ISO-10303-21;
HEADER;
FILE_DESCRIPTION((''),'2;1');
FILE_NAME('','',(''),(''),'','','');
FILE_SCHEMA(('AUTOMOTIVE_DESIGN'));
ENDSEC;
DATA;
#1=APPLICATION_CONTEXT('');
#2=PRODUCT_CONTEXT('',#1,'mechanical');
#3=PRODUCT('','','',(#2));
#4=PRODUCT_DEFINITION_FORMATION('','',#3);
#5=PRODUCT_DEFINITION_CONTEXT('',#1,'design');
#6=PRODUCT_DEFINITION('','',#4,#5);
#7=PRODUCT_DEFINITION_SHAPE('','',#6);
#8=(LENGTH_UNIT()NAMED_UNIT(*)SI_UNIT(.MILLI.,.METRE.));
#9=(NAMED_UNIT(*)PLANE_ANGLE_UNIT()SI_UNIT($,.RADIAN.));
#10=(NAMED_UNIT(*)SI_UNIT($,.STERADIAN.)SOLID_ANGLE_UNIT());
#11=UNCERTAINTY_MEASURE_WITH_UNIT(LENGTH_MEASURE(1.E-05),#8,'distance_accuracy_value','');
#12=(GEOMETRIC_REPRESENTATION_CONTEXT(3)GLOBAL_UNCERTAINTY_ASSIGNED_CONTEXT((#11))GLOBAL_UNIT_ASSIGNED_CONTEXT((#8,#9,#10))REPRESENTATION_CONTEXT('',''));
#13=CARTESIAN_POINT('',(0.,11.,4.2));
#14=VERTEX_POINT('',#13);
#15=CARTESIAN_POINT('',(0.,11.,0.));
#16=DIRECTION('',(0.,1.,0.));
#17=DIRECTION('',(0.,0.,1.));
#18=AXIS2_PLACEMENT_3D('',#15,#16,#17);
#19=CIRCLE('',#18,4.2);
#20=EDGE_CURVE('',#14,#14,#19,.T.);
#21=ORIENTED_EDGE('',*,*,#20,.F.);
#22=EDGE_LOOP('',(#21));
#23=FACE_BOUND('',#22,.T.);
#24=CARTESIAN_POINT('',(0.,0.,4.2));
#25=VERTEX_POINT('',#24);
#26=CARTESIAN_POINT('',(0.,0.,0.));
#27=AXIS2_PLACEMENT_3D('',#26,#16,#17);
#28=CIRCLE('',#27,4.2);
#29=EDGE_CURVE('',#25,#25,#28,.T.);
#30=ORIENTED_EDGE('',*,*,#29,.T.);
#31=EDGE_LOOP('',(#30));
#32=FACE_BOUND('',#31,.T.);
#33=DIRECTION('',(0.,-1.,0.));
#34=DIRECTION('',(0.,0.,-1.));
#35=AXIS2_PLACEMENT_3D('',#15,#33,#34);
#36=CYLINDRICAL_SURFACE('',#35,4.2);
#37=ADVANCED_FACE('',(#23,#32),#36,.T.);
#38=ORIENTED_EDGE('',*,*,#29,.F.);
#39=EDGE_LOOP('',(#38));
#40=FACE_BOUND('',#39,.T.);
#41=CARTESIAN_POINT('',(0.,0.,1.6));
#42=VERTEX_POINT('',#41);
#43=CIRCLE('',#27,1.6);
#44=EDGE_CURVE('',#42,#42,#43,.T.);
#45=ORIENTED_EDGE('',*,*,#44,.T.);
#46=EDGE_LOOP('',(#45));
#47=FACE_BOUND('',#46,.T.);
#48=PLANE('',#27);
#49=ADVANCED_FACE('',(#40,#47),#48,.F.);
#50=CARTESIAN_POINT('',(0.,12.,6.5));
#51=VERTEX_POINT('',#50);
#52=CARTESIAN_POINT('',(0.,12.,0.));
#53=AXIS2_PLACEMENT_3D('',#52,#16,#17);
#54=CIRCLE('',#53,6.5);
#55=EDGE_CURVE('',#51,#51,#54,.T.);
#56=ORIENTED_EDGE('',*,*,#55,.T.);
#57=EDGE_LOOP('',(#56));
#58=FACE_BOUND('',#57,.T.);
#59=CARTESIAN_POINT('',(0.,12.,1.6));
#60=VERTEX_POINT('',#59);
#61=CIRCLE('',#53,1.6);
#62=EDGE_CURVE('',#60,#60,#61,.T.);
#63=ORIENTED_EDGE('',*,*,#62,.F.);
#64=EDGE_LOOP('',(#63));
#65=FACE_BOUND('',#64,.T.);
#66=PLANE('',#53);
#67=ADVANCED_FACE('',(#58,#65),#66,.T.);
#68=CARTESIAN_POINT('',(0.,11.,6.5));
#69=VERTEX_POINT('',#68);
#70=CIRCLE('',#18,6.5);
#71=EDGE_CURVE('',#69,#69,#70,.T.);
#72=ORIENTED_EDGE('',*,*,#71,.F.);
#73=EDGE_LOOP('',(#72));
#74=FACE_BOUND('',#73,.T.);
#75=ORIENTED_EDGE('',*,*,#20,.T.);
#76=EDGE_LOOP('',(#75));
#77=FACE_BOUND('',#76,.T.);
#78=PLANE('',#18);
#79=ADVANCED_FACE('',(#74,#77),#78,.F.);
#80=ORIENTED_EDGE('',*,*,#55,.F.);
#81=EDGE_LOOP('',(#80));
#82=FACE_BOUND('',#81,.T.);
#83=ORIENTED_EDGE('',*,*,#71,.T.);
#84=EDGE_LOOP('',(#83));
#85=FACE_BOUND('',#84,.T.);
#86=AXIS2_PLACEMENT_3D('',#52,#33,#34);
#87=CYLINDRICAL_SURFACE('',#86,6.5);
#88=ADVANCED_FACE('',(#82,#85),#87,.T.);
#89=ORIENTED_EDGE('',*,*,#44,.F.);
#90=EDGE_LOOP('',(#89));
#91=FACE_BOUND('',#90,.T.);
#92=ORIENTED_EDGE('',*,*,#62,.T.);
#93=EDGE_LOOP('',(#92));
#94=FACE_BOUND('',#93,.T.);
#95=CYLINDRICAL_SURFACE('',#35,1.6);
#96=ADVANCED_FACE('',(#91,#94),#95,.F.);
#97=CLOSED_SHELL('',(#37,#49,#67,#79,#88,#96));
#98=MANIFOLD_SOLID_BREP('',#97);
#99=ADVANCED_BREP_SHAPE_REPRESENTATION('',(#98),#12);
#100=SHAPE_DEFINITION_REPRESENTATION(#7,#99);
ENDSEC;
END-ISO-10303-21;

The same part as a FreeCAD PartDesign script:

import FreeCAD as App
import Part
import Sketcher
from FreeCAD import Vector

doc = App.newDocument("Part")
body = doc.addObject("PartDesign::Body", "Body")

# Sketch on XZ plane
sketch1 = body.newObject("Sketcher::SketchObject", "Sketch")
sketch1.AttachmentSupport = (doc.getObject("XZ_Plane"), [""])
sketch1.MapMode = "FlatFace"
sketch1.addGeometry(Part.Circle(Vector(0, 0, 0), Vector(0, 0, 1), 4.2), False)
sketch1.addGeometry(Part.Circle(Vector(0, 0, 0), Vector(0, 0, 1), 1.6), False)
sketch1.addConstraint(Sketcher.Constraint("Coincident", 0, 3, -1, 1))
sketch1.addConstraint(Sketcher.Constraint("Coincident", 1, 3, -1, 1))
sketch1.addConstraint(Sketcher.Constraint("Diameter", 0, 8.4))
sketch1.addConstraint(Sketcher.Constraint("Diameter", 1, 3.2))
pad1 = body.newObject("PartDesign::Pad", "Pad")
pad1.Profile = sketch1
pad1.Length = 11
pad1.Reversed = True

# Sketch on XZ plane
sketch2 = body.newObject("Sketcher::SketchObject", "Sketch001")
sketch2.AttachmentSupport = (doc.getObject("XZ_Plane"), [""])
sketch2.MapMode = "FlatFace"
sketch2.AttachmentOffset = App.Placement(Vector(0, 0, -11), App.Rotation())
sketch2.addGeometry(Part.Circle(Vector(0, 0, 0), Vector(0, 0, 1), 6.5), False)
sketch2.addGeometry(Part.Circle(Vector(0, 0, 0), Vector(0, 0, 1), 1.6), False)
sketch2.addConstraint(Sketcher.Constraint("Coincident", 0, 3, -1, 1))
sketch2.addConstraint(Sketcher.Constraint("Coincident", 1, 3, -1, 1))
sketch2.addConstraint(Sketcher.Constraint("Diameter", 0, 13.0))
sketch2.addConstraint(Sketcher.Constraint("Diameter", 1, 3.2))
pad2 = body.newObject("PartDesign::Pad", "Pad001")
pad2.Profile = sketch2
pad2.Length = 1
pad2.Reversed = True

doc.recompute()
